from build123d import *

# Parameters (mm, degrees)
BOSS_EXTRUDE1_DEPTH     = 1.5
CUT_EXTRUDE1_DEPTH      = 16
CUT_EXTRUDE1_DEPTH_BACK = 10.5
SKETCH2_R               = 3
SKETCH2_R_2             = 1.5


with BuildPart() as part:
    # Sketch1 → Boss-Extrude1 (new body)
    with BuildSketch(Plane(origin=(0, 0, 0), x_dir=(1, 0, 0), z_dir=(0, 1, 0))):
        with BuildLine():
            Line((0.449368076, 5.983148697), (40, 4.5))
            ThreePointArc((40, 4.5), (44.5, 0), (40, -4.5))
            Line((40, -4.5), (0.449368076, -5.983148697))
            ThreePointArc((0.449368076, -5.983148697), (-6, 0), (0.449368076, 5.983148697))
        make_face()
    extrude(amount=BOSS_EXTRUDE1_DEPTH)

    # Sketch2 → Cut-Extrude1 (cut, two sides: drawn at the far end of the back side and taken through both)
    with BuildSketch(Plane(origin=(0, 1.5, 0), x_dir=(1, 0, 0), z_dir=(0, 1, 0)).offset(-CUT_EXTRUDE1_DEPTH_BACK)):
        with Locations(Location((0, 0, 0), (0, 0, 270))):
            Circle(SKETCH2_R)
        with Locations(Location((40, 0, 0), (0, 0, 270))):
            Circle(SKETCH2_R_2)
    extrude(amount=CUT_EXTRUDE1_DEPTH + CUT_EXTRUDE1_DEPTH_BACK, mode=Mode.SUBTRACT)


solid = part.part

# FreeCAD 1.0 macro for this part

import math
import FreeCAD as App
import Part
import Sketcher

doc = App.newDocument("Part")
params = doc.addObject("Spreadsheet::Sheet", "Params")
for row, (alias, value) in enumerate([
    ("sketch1_radius", "6 mm"),
    ("sketch1_radius2", "4.5 mm"),
    ("pad1_length", "1.5 mm"),
    ("sketch2_diameter", "6 mm"),
    ("sketch2_diameter2", "3 mm"),
], start=1):
    params.set(f"A{row}", alias)
    params.set(f"B{row}", "=" + value)
    params.setAlias(f"B{row}", alias)

body = doc.addObject("PartDesign::Body", "Body")

sketch1 = body.newObject("Sketcher::SketchObject", "Sketch")
sketch1.AttachmentSupport = (doc.getObject("XZ_Plane"), [""])
sketch1.MapMode = "FlatFace"
sketch1.addGeometry([
    Part.LineSegment(App.Vector(40, -4.5, 0), App.Vector(0.449368, -5.983149, 0)),
    Part.ArcOfCircle(Part.Circle(App.Vector(0, 0, 0), App.Vector(0, 0, 1), 6), math.radians(85.704829), math.radians(274.295171)),
    Part.LineSegment(App.Vector(0.449368, 5.983149, 0), App.Vector(40, 4.5, 0)),
    Part.ArcOfCircle(Part.Circle(App.Vector(40, 0, 0), App.Vector(0, 0, 1), 4.5), math.radians(-90), math.radians(90)),
], False)
sketch1.addConstraint([
    Sketcher.Constraint("Coincident", 0, 2, 1, 2),
    Sketcher.Constraint("Coincident", 1, 1, 2, 1),
    Sketcher.Constraint("Coincident", 2, 2, 3, 2),
    Sketcher.Constraint("Coincident", 3, 1, 0, 1),
    Sketcher.Constraint("Coincident", 1, 3, -1, 1),
    Sketcher.Constraint("Symmetric", 2, 2, 3, 1, -1),
    Sketcher.Constraint("Vertical", 0, 2, 1, 1),
    Sketcher.Constraint("Vertical", 3, 3, 2, 2),
    Sketcher.Constraint("Radius", 1, 6.0),
    Sketcher.Constraint("Radius", 3, 4.5),
    Sketcher.Constraint("DistanceX", -1, 1, 3, 3, 40.0),
    Sketcher.Constraint("Distance", 0, 39.578431),
])
sketch1.setExpression("Constraints[8]", "Params.sketch1_radius")
sketch1.setExpression("Constraints[9]", "Params.sketch1_radius2")
pad1 = body.newObject("PartDesign::Pad", "Pad")
pad1.Profile = sketch1
pad1.setExpression("Length", "Params.pad1_length")
pad1.Reversed = True

sketch2 = body.newObject("Sketcher::SketchObject", "Sketch001")
sketch2.AttachmentSupport = (doc.getObject("XZ_Plane"), [""])
sketch2.MapMode = "FlatFace"
sketch2.AttachmentOffset = App.Placement(App.Vector(0, 0, -1.5), App.Rotation())
sketch2.addGeometry([
    Part.Circle(App.Vector(0, 0, 0), App.Vector(0, 0, 1), 3),
    Part.Circle(App.Vector(40, 0, 0), App.Vector(0, 0, 1), 1.5),
], False)
sketch2.addConstraint([
    Sketcher.Constraint("Coincident", 0, 3, -1, 1),
    Sketcher.Constraint("PointOnObject", 1, 3, -1),
    Sketcher.Constraint("Diameter", 0, 6.0),
    Sketcher.Constraint("Diameter", 1, 3.0),
    Sketcher.Constraint("DistanceX", -1, 1, 1, 3, 40.0),
])
sketch2.setExpression("Constraints[2]", "Params.sketch2_diameter")
sketch2.setExpression("Constraints[3]", "Params.sketch2_diameter2")
pocket1 = body.newObject("PartDesign::Pocket", "Pocket")
pocket1.Profile = sketch2
pocket1.Type = "ThroughAll"
pocket1.Midplane = True

doc.recompute()
